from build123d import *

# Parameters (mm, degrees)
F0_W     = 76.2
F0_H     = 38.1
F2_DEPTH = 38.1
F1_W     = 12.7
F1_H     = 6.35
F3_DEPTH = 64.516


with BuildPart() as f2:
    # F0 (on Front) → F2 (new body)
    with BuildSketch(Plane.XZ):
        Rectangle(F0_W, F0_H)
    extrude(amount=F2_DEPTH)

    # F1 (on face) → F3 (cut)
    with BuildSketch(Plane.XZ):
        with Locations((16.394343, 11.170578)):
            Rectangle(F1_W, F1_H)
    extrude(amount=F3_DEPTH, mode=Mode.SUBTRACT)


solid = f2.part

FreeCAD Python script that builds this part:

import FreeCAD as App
import Part
import Sketcher
Q = App.Units.Quantity

doc = App.newDocument("Part")
body = doc.addObject("PartDesign::Body", "Body")

# Sketch on XZ plane
sketch1 = doc.addObject("Sketcher::SketchObject", "Sketch")
body.addObject(sketch1)
sketch1.AttachmentSupport = (doc.XZ_Plane, [""])
sketch1.MapMode = "FlatFace"
sketch1.addGeometry([
    Part.LineSegment(App.Vector(-38, 19, 0), App.Vector(-38, -19, 0)),
    Part.LineSegment(App.Vector(-38, -19, 0), App.Vector(38, -19, 0)),
    Part.LineSegment(App.Vector(38, -19, 0), App.Vector(38, 19, 0)),
    Part.LineSegment(App.Vector(38, 19, 0), App.Vector(-38, 19, 0)),
], False)
sketch1.addConstraint([
    Sketcher.Constraint("Coincident", 0, 2, 1, 1),
    Sketcher.Constraint("Coincident", 1, 2, 2, 1),
    Sketcher.Constraint("Coincident", 2, 2, 3, 1),
    Sketcher.Constraint("Coincident", 3, 2, 0, 1),
    Sketcher.Constraint("Vertical", 0),
    Sketcher.Constraint("Horizontal", 1),
    Sketcher.Constraint("Vertical", 2),
    Sketcher.Constraint("Horizontal", 3),
    Sketcher.Constraint("Symmetric", 0, 2, 2, 2, -1, 1),
    Sketcher.Constraint("DistanceX", 1, 1, 1, 2, Q("3 in")),
    Sketcher.Constraint("DistanceY", 0, 2, 0, 1, Q("1.5 in")),
])
pad1 = doc.addObject("PartDesign::Pad", "Pad")
body.addObject(pad1)
pad1.Profile = sketch1
pad1.Length = Q("1.5 in")

# Sketch on XZ plane
sketch2 = doc.addObject("Sketcher::SketchObject", "Sketch001")
body.addObject(sketch2)
sketch2.AttachmentSupport = (doc.XZ_Plane, [""])
sketch2.MapMode = "FlatFace"
sketch2.addGeometry([
    Part.LineSegment(App.Vector(10, 14, 0), App.Vector(10, 8, 0)),
    Part.LineSegment(App.Vector(10, 8, 0), App.Vector(23, 8, 0)),
    Part.LineSegment(App.Vector(23, 8, 0), App.Vector(23, 14, 0)),
    Part.LineSegment(App.Vector(23, 14, 0), App.Vector(10, 14, 0)),
], False)
sketch2.addConstraint([
    Sketcher.Constraint("Coincident", 0, 2, 1, 1),
    Sketcher.Constraint("Coincident", 1, 2, 2, 1),
    Sketcher.Constraint("Coincident", 2, 2, 3, 1),
    Sketcher.Constraint("Coincident", 3, 2, 0, 1),
    Sketcher.Constraint("Vertical", 0),
    Sketcher.Constraint("Horizontal", 1),
    Sketcher.Constraint("Vertical", 2),
    Sketcher.Constraint("Horizontal", 3),
    Sketcher.Constraint("DistanceX", 1, 1, 1, 2, Q("0.5 in")),
    Sketcher.Constraint("DistanceY", 0, 2, 0, 1, Q("0.25 in")),
    Sketcher.Constraint("DistanceX", -1, 1, 0, 2, Q("10.044343 mm")),
    Sketcher.Constraint("DistanceY", -1, 1, 0, 2, Q("7.995578 mm")),
])
pocket1 = doc.addObject("PartDesign::Pocket", "Pocket")
body.addObject(pocket1)
pocket1.Profile = sketch2
pocket1.Length = Q("2.54 in")
pocket1.Reversed = True

doc.recompute()
